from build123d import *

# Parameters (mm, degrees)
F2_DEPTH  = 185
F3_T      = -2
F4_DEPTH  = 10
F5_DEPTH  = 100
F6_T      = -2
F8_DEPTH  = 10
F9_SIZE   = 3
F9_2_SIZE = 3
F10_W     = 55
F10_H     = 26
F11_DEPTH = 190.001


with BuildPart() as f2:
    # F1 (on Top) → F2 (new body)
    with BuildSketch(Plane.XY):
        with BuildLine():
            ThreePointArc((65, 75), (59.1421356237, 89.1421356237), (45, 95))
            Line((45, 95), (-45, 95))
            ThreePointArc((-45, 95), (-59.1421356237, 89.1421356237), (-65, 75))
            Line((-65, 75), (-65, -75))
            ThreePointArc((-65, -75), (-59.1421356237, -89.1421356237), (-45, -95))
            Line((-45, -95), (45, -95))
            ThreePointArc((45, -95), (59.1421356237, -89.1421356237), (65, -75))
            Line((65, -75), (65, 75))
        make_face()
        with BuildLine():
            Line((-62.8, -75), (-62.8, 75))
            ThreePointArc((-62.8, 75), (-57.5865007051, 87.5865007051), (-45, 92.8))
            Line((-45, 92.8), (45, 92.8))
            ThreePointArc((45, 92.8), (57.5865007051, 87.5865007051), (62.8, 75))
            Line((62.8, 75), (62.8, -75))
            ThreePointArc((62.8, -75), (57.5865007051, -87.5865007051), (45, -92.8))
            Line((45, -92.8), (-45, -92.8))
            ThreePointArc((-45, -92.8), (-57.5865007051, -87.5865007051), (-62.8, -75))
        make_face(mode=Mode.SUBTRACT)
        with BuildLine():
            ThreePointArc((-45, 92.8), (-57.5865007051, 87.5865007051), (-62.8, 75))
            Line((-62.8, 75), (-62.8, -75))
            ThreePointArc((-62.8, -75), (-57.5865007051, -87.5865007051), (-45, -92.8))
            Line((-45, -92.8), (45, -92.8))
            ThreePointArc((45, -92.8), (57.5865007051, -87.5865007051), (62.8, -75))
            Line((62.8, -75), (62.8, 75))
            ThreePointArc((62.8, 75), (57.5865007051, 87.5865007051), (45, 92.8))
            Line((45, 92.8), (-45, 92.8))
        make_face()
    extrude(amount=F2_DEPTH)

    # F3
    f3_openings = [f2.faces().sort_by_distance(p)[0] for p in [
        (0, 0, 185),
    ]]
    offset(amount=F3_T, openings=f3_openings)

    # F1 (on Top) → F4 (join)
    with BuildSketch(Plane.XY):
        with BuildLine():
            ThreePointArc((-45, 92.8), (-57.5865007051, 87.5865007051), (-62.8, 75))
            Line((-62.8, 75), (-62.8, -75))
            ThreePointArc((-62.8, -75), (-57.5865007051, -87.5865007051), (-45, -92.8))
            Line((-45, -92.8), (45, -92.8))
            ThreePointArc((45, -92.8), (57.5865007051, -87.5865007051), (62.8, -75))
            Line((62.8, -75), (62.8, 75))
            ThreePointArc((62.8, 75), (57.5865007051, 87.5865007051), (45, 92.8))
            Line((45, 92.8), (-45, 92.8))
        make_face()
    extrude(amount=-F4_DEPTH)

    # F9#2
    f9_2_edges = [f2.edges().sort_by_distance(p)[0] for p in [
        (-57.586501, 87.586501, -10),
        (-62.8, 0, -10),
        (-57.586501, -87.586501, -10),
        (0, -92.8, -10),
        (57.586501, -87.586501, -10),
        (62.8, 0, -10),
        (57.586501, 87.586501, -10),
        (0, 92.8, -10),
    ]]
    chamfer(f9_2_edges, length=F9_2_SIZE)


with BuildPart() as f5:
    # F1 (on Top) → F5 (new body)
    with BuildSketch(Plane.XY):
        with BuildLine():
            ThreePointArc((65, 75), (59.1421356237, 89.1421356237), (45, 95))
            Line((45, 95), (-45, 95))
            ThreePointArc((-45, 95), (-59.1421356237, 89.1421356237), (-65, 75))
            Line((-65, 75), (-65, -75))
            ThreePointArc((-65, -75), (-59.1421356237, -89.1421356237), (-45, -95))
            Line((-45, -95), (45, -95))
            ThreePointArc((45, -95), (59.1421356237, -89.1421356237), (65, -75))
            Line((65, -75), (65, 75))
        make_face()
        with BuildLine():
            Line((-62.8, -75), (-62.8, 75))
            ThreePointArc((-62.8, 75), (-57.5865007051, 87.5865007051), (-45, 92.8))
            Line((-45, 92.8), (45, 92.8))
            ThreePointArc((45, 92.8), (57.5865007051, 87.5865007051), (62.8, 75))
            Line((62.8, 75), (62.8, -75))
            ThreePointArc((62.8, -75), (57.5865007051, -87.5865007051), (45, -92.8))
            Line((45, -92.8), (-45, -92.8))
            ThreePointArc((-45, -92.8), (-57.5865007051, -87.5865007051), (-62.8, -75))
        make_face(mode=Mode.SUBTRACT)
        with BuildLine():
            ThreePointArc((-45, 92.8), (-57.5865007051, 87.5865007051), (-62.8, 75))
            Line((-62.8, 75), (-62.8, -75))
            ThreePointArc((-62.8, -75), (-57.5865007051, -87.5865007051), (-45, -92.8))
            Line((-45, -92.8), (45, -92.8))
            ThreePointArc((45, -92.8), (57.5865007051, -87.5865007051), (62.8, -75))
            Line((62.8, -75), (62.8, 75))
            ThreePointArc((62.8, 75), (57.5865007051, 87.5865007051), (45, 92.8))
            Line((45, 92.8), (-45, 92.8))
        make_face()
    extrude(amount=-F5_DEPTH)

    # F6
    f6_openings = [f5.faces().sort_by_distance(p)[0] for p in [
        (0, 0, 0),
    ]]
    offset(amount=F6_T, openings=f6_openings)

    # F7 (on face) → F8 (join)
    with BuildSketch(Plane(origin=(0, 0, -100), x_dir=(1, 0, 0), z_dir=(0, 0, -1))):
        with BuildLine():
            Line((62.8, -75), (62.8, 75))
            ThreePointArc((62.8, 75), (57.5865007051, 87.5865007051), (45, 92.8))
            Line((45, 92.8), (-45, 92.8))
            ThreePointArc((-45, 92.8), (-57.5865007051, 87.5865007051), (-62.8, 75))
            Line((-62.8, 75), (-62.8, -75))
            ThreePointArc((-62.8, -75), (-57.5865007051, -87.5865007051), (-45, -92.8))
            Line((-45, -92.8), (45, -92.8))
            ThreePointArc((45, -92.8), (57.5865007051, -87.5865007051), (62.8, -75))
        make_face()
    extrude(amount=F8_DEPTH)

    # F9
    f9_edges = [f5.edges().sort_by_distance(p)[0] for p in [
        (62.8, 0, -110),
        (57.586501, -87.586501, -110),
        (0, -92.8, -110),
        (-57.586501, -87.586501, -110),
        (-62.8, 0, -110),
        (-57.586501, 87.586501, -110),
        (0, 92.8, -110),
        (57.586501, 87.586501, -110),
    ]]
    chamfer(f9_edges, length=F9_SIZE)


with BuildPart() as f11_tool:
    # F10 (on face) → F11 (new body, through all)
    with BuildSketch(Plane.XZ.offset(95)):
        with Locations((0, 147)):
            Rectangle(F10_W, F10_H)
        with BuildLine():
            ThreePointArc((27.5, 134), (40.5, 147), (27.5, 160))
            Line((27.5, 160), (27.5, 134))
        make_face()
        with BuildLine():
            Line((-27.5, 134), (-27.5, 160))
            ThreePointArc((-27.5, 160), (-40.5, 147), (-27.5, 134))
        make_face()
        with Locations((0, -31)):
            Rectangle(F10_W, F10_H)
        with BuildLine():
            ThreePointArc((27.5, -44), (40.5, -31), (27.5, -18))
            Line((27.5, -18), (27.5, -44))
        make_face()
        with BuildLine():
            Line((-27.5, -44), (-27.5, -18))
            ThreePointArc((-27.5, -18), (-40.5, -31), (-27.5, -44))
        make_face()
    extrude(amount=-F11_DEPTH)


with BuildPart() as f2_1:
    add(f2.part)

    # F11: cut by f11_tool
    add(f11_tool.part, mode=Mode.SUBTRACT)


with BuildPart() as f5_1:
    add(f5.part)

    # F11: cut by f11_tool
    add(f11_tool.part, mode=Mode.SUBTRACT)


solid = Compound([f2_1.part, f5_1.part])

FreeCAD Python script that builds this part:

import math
import FreeCAD as App
import Part
import Sketcher
from FreeCAD import Vector
Q = App.Units.Quantity


def edges_at(feature, points):
    """Names of the edges that pass closest to the given points."""
    edges = feature.Shape.Edges
    near = lambda p: min(range(len(edges)), key=lambda i: edges[i].distToShape(Part.Vertex(*p))[0])
    return sorted({f"Edge{near(p) + 1}" for p in points})


def faces_at(feature, points):
    """Names of the faces that lie closest to the given points."""
    faces = feature.Shape.Faces
    near = lambda p: min(range(len(faces)), key=lambda i: faces[i].distToShape(Part.Vertex(*p))[0])
    return sorted({f"Face{near(p) + 1}" for p in points})

doc = App.newDocument("Part")
body = doc.addObject("PartDesign::Body", "Body")

# Sketch on XY plane
sketch1 = body.newObject("Sketcher::SketchObject", "Sketch")
sketch1.AttachmentSupport = (doc.getObject("XY_Plane"), [""])
sketch1.MapMode = "FlatFace"
sketch1.addGeometry([
    Part.ArcOfCircle(Part.Circle(Vector(45, 75, 0), Vector(0, 0, 1), 20), math.radians(0), math.radians(90)),  # 0
    Part.LineSegment(Vector(45, 95, 0), Vector(-45, 95, 0)),  # 1
    Part.ArcOfCircle(Part.Circle(Vector(-45, 75, 0), Vector(0, 0, 1), 20), math.radians(90), math.radians(180)),  # 2
    Part.LineSegment(Vector(-65, 75, 0), Vector(-65, -75, 0)),  # 3
    Part.ArcOfCircle(Part.Circle(Vector(-45, -75, 0), Vector(0, 0, 1), 20), math.radians(180), math.radians(270)),  # 4
    Part.LineSegment(Vector(-45, -95, 0), Vector(45, -95, 0)),  # 5
    Part.ArcOfCircle(Part.Circle(Vector(45, -75, 0), Vector(0, 0, 1), 20), math.radians(-90), math.radians(0)),  # 6
    Part.LineSegment(Vector(65, -75, 0), Vector(65, 75, 0)),  # 7
], False)
sketch1.addConstraint([
    Sketcher.Constraint("Tangent", 0, 2, 1, 1),
    Sketcher.Constraint("Tangent", 1, 2, 2, 1),
    Sketcher.Constraint("Tangent", 2, 2, 3, 1),
    Sketcher.Constraint("Tangent", 3, 2, 4, 1),
    Sketcher.Constraint("Tangent", 4, 2, 5, 1),
    Sketcher.Constraint("Tangent", 5, 2, 6, 1),
    Sketcher.Constraint("Tangent", 6, 2, 7, 1),
    Sketcher.Constraint("Tangent", 7, 2, 0, 1),
    Sketcher.Constraint("Horizontal", 1),
    Sketcher.Constraint("Vertical", 3),
    Sketcher.Constraint("Horizontal", 5),
    Sketcher.Constraint("Vertical", 7),
    Sketcher.Constraint("Equal", 0, 2),
    Sketcher.Constraint("Equal", 2, 4),
    Sketcher.Constraint("Equal", 4, 6),
    Sketcher.Constraint("Symmetric", 0, 3, 4, 3, -1, 1),
    Sketcher.Constraint("Radius", 0, Q("20 mm")),
    Sketcher.Constraint("DistanceX", 1, 2, 1, 1, Q("90 mm")),
    Sketcher.Constraint("DistanceY", 3, 2, 3, 1, Q("150 mm")),
])
pad1 = body.newObject("PartDesign::Pad", "Pad")
pad1.Profile = sketch1
pad1.Length = 185
doc.recompute()

thickness = body.newObject("PartDesign::Thickness", "Thickness")
thickness.Base = (pad1, faces_at(pad1, [(0, 0, 185)]))
thickness.Value = 2
thickness.Reversed = True
thickness.Join = "Arc"

# Sketch on XY plane
sketch2 = body.newObject("Sketcher::SketchObject", "Sketch001")
sketch2.AttachmentSupport = (doc.getObject("XY_Plane"), [""])
sketch2.MapMode = "FlatFace"
sketch2.addGeometry([
    Part.ArcOfCircle(Part.Circle(Vector(-45, 75, 0), Vector(0, 0, 1), 18), math.radians(90), math.radians(180)),  # 0
    Part.LineSegment(Vector(-63, 75, 0), Vector(-63, -75, 0)),  # 1
    Part.ArcOfCircle(Part.Circle(Vector(-45, -75, 0), Vector(0, 0, 1), 18), math.radians(180), math.radians(270)),  # 2
    Part.LineSegment(Vector(-45, -93, 0), Vector(45, -93, 0)),  # 3
    Part.ArcOfCircle(Part.Circle(Vector(45, -75, 0), Vector(0, 0, 1), 18), math.radians(-90), math.radians(0)),  # 4
    Part.LineSegment(Vector(63, -75, 0), Vector(63, 75, 0)),  # 5
    Part.ArcOfCircle(Part.Circle(Vector(45, 75, 0), Vector(0, 0, 1), 18), math.radians(0), math.radians(90)),  # 6
    Part.LineSegment(Vector(45, 93, 0), Vector(-45, 93, 0)),  # 7
], False)
sketch2.addConstraint([
    Sketcher.Constraint("Tangent", 0, 2, 1, 1),
    Sketcher.Constraint("Tangent", 1, 2, 2, 1),
    Sketcher.Constraint("Tangent", 2, 2, 3, 1),
    Sketcher.Constraint("Tangent", 3, 2, 4, 1),
    Sketcher.Constraint("Tangent", 4, 2, 5, 1),
    Sketcher.Constraint("Tangent", 5, 2, 6, 1),
    Sketcher.Constraint("Tangent", 6, 2, 7, 1),
    Sketcher.Constraint("Tangent", 7, 2, 0, 1),
    Sketcher.Constraint("Vertical", 1),
    Sketcher.Constraint("Horizontal", 3),
    Sketcher.Constraint("Vertical", 5),
    Sketcher.Constraint("Horizontal", 7),
    Sketcher.Constraint("Equal", 0, 2),
    Sketcher.Constraint("Equal", 2, 4),
    Sketcher.Constraint("Equal", 4, 6),
    Sketcher.Constraint("Symmetric", 0, 3, 4, 3, -1, 1),
    Sketcher.Constraint("Radius", 0, Q("17.8 mm")),
    Sketcher.Constraint("DistanceX", 3, 1, 3, 2, Q("90 mm")),
    Sketcher.Constraint("DistanceY", 1, 2, 1, 1, Q("150 mm")),
])
pad2 = body.newObject("PartDesign::Pad", "Pad001")
pad2.Profile = sketch2
pad2.Length = 10
pad2.Reversed = True
doc.recompute()

chamfer = body.newObject("PartDesign::Chamfer", "Chamfer")
chamfer.Base = (pad2, edges_at(pad2, [
    (-57.587, 87.587, -10),
    (-62.8, 0, -10),
    (-57.587, -87.587, -10),
    (0, -92.8, -10),
    (57.587, -87.587, -10),
    (62.8, 0, -10),
    (57.587, 87.587, -10),
    (0, 92.8, -10),
]))
chamfer.Size = 3
body2 = doc.addObject("PartDesign::Body", "Body001")

# Sketch on XY plane
sketch3 = body2.newObject("Sketcher::SketchObject", "Sketch002")
sketch3.AttachmentSupport = (doc.getObject("XY_Plane001"), [""])
sketch3.MapMode = "FlatFace"
sketch3.addGeometry([
    Part.ArcOfCircle(Part.Circle(Vector(45, 75, 0), Vector(0, 0, 1), 20), math.radians(0), math.radians(90)),  # 0
    Part.LineSegment(Vector(45, 95, 0), Vector(-45, 95, 0)),  # 1
    Part.ArcOfCircle(Part.Circle(Vector(-45, 75, 0), Vector(0, 0, 1), 20), math.radians(90), math.radians(180)),  # 2
    Part.LineSegment(Vector(-65, 75, 0), Vector(-65, -75, 0)),  # 3
    Part.ArcOfCircle(Part.Circle(Vector(-45, -75, 0), Vector(0, 0, 1), 20), math.radians(180), math.radians(270)),  # 4
    Part.LineSegment(Vector(-45, -95, 0), Vector(45, -95, 0)),  # 5
    Part.ArcOfCircle(Part.Circle(Vector(45, -75, 0), Vector(0, 0, 1), 20), math.radians(-90), math.radians(0)),  # 6
    Part.LineSegment(Vector(65, -75, 0), Vector(65, 75, 0)),  # 7
], False)
sketch3.addConstraint([
    Sketcher.Constraint("Tangent", 0, 2, 1, 1),
    Sketcher.Constraint("Tangent", 1, 2, 2, 1),
    Sketcher.Constraint("Tangent", 2, 2, 3, 1),
    Sketcher.Constraint("Tangent", 3, 2, 4, 1),
    Sketcher.Constraint("Tangent", 4, 2, 5, 1),
    Sketcher.Constraint("Tangent", 5, 2, 6, 1),
    Sketcher.Constraint("Tangent", 6, 2, 7, 1),
    Sketcher.Constraint("Tangent", 7, 2, 0, 1),
    Sketcher.Constraint("Horizontal", 1),
    Sketcher.Constraint("Vertical", 3),
    Sketcher.Constraint("Horizontal", 5),
    Sketcher.Constraint("Vertical", 7),
    Sketcher.Constraint("Equal", 0, 2),
    Sketcher.Constraint("Equal", 2, 4),
    Sketcher.Constraint("Equal", 4, 6),
    Sketcher.Constraint("Symmetric", 0, 3, 4, 3, -1, 1),
    Sketcher.Constraint("Radius", 0, Q("20 mm")),
    Sketcher.Constraint("DistanceX", 1, 2, 1, 1, Q("90 mm")),
    Sketcher.Constraint("DistanceY", 3, 2, 3, 1, Q("150 mm")),
])
pad3 = body2.newObject("PartDesign::Pad", "Pad002")
pad3.Profile = sketch3
pad3.Length = 100
pad3.Reversed = True
doc.recompute()

thickness2 = body2.newObject("PartDesign::Thickness", "Thickness001")
thickness2.Base = (pad3, faces_at(pad3, [(0, 0, 0)]))
thickness2.Value = 2
thickness2.Reversed = True
thickness2.Join = "Arc"

# Sketch on XY plane
sketch4 = body2.newObject("Sketcher::SketchObject", "Sketch003")
sketch4.AttachmentSupport = (doc.getObject("XY_Plane001"), [""])
sketch4.MapMode = "FlatFace"
sketch4.AttachmentOffset = App.Placement(Vector(0, 0, -100), App.Rotation())
sketch4.addGeometry([
    Part.LineSegment(Vector(63, 75, 0), Vector(63, -75, 0)),  # 0
    Part.ArcOfCircle(Part.Circle(Vector(45, -75, 0), Vector(0, 0, 1), 18), math.radians(-90), math.radians(0)),  # 1
    Part.LineSegment(Vector(45, -93, 0), Vector(-45, -93, 0)),  # 2
    Part.ArcOfCircle(Part.Circle(Vector(-45, -75, 0), Vector(0, 0, 1), 18), math.radians(180), math.radians(270)),  # 3
    Part.LineSegment(Vector(-63, -75, 0), Vector(-63, 75, 0)),  # 4
    Part.ArcOfCircle(Part.Circle(Vector(-45, 75, 0), Vector(0, 0, 1), 18), math.radians(90), math.radians(180)),  # 5
    Part.LineSegment(Vector(-45, 93, 0), Vector(45, 93, 0)),  # 6
    Part.ArcOfCircle(Part.Circle(Vector(45, 75, 0), Vector(0, 0, 1), 18), math.radians(0), math.radians(90)),  # 7
], False)
sketch4.addConstraint([
    Sketcher.Constraint("Tangent", 0, 2, 1, 2),
    Sketcher.Constraint("Tangent", 1, 1, 2, 1),
    Sketcher.Constraint("Tangent", 2, 2, 3, 2),
    Sketcher.Constraint("Tangent", 3, 1, 4, 1),
    Sketcher.Constraint("Tangent", 4, 2, 5, 2),
    Sketcher.Constraint("Tangent", 5, 1, 6, 1),
    Sketcher.Constraint("Tangent", 6, 2, 7, 2),
    Sketcher.Constraint("Tangent", 7, 1, 0, 1),
    Sketcher.Constraint("Vertical", 0),
    Sketcher.Constraint("Horizontal", 2),
    Sketcher.Constraint("Vertical", 4),
    Sketcher.Constraint("Horizontal", 6),
    Sketcher.Constraint("Equal", 1, 3),
    Sketcher.Constraint("Equal", 3, 5),
    Sketcher.Constraint("Equal", 5, 7),
    Sketcher.Constraint("Symmetric", 1, 3, 5, 3, -1, 1),
    Sketcher.Constraint("Radius", 1, Q("17.8 mm")),
    Sketcher.Constraint("DistanceX", 2, 2, 2, 1, Q("90 mm")),
    Sketcher.Constraint("DistanceY", 0, 2, 0, 1, Q("150 mm")),
])
pad4 = body2.newObject("PartDesign::Pad", "Pad003")
pad4.Profile = sketch4
pad4.Length = 10
pad4.Reversed = True
doc.recompute()

chamfer2 = body2.newObject("PartDesign::Chamfer", "Chamfer001")
chamfer2.Base = (pad4, edges_at(pad4, [
    (62.8, 0, -110),
    (57.587, -87.587, -110),
    (0, -92.8, -110),
    (-57.587, -87.587, -110),
    (-62.8, 0, -110),
    (-57.587, 87.587, -110),
    (0, 92.8, -110),
    (57.587, 87.587, -110),
]))
chamfer2.Size = 3
body3 = doc.addObject("PartDesign::Body", "Body002")
body3.AllowCompound = True

# Sketch on XZ plane
sketch5 = body3.newObject("Sketcher::SketchObject", "Sketch004")
sketch5.AttachmentSupport = (doc.getObject("XZ_Plane002"), [""])
sketch5.MapMode = "FlatFace"
sketch5.AttachmentOffset = App.Placement(Vector(0, 0, 95), App.Rotation())
sketch5.addGeometry([
    Part.LineSegment(Vector(-28, 134, 0), Vector(28, 134, 0)),  # 0
    Part.ArcOfCircle(Part.Circle(Vector(28, 147, 0), Vector(0, 0, 1), 13), math.radians(-90), math.radians(90)),  # 1
    Part.LineSegment(Vector(28, 160, 0), Vector(-28, 160, 0)),  # 2
    Part.ArcOfCircle(Part.Circle(Vector(-28, 147, 0), Vector(0, 0, 1), 13), math.radians(90), math.radians(270)),  # 3
    Part.LineSegment(Vector(-28, -44, 0), Vector(28, -44, 0)),  # 4
    Part.ArcOfCircle(Part.Circle(Vector(28, -31, 0), Vector(0, 0, 1), 13), math.radians(-90), math.radians(90)),  # 5
    Part.LineSegment(Vector(28, -18, 0), Vector(-28, -18, 0)),  # 6
    Part.ArcOfCircle(Part.Circle(Vector(-28, -31, 0), Vector(0, 0, 1), 13), math.radians(90), math.radians(270)),  # 7
], False)
sketch5.addConstraint([
    Sketcher.Constraint("Tangent", 0, 2, 1, 1),
    Sketcher.Constraint("Tangent", 1, 2, 2, 1),
    Sketcher.Constraint("Tangent", 2, 2, 3, 1),
    Sketcher.Constraint("Tangent", 3, 2, 0, 1),
    Sketcher.Constraint("Tangent", 4, 2, 5, 1),
    Sketcher.Constraint("Tangent", 5, 2, 6, 1),
    Sketcher.Constraint("Tangent", 6, 2, 7, 1),
    Sketcher.Constraint("Tangent", 7, 2, 4, 1),
    Sketcher.Constraint("Horizontal", 0),
    Sketcher.Constraint("Horizontal", 2),
    Sketcher.Constraint("Horizontal", 4),
    Sketcher.Constraint("Horizontal", 6),
    Sketcher.Constraint("Equal", 3, 5),
    Sketcher.Constraint("Vertical", 1, 3, 5, 3),
    Sketcher.Constraint("Vertical", 3, 3, 7, 3),
    Sketcher.Constraint("Radius", 1, Q("13 mm")),
    Sketcher.Constraint("DistanceX", 0, 1, 0, 2, Q("55 mm")),
    Sketcher.Constraint("DistanceY", -1, 1, 1, 3, Q("147 mm")),
    Sketcher.Constraint("DistanceY", 5, 3, -1, 1, Q("31 mm")),
    Sketcher.Constraint("DistanceX", -1, 1, 1, 3, Q("27.5 mm")),
])
pad5 = body3.newObject("PartDesign::Pad", "Pad004")
pad5.Profile = sketch5
pad5.Length = 190.001
pad5.Reversed = True
doc.recompute()

body4 = doc.addObject("PartDesign::Body", "Body003")
body4.BaseFeature = body3
boolean = body.newObject("PartDesign::Boolean", "Boolean")
boolean.Type = "Cut"
boolean.addObjects([body4])
doc.recompute()

boolean2 = body2.newObject("PartDesign::Boolean", "Boolean001")
boolean2.Type = "Cut"
boolean2.addObjects([body3])

doc.recompute()
